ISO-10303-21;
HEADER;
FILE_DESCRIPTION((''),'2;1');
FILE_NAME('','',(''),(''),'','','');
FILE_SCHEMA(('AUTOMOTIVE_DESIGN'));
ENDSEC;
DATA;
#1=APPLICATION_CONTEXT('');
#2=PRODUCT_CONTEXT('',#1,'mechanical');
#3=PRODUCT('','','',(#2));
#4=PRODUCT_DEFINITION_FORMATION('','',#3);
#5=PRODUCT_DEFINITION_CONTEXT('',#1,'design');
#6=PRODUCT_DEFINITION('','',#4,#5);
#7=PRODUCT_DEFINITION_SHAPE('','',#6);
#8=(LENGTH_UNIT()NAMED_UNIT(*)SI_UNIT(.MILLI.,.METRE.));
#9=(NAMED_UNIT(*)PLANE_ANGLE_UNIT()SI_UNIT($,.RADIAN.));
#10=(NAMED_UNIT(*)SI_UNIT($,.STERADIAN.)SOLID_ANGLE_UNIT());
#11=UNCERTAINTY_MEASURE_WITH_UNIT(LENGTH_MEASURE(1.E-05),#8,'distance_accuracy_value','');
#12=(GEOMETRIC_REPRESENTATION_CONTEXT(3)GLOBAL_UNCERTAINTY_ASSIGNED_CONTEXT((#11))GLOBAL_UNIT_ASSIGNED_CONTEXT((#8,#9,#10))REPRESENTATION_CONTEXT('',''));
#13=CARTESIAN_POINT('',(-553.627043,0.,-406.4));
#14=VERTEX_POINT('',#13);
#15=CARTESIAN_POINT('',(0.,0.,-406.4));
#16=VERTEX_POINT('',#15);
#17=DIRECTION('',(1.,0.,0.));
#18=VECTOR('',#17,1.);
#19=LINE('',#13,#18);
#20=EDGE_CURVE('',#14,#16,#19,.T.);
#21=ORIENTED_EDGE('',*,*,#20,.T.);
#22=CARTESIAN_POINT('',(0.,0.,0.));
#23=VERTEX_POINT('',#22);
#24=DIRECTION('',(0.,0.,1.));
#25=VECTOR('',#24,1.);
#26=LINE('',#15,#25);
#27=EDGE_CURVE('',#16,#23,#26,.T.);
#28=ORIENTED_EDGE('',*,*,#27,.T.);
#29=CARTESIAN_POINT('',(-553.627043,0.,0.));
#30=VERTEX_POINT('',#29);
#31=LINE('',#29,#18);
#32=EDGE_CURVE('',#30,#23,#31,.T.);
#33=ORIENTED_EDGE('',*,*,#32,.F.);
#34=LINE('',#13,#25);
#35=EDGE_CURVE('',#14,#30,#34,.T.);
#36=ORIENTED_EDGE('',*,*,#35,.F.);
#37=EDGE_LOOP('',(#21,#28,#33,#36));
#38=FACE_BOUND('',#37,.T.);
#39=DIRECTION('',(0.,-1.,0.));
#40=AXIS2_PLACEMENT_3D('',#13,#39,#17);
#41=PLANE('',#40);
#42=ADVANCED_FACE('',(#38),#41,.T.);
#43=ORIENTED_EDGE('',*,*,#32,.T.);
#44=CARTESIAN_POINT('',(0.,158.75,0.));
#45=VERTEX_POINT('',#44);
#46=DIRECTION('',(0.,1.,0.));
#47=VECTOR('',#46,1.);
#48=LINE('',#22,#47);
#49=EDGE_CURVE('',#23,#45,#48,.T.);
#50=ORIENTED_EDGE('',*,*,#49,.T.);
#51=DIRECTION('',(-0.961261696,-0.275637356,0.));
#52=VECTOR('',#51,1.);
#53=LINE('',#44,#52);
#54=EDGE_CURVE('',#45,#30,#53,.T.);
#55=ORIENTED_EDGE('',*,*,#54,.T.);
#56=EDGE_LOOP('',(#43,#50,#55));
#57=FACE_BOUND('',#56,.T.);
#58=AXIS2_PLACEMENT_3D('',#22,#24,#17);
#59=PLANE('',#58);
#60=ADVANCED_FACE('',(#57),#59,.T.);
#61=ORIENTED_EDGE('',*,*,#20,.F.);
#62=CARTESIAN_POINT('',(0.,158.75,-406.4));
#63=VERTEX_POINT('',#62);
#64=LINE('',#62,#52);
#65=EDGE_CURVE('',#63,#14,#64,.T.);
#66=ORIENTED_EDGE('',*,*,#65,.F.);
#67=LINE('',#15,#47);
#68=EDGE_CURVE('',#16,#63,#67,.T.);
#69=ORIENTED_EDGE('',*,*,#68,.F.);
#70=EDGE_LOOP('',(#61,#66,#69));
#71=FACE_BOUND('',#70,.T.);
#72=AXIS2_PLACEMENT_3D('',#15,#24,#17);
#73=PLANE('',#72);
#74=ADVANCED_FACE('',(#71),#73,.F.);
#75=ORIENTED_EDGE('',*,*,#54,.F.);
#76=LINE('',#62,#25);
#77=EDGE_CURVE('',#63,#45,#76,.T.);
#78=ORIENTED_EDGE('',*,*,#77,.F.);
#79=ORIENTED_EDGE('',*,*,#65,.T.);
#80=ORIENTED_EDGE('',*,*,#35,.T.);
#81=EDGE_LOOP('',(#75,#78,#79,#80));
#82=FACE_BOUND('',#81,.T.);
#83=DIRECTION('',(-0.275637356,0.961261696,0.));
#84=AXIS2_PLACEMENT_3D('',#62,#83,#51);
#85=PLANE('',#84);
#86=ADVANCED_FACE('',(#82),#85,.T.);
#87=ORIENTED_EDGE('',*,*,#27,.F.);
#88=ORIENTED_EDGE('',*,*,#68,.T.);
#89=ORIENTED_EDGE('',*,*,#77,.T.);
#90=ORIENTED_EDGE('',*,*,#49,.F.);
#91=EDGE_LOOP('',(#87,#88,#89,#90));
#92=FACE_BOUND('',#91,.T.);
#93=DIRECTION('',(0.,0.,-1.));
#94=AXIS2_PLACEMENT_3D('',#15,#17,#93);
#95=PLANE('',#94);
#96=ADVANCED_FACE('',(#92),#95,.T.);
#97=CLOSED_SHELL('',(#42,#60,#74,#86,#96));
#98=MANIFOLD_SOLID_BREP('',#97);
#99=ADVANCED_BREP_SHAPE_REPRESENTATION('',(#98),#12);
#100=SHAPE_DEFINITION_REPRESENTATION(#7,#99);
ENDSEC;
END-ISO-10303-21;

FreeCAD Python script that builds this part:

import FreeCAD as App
import Part
import Sketcher
from FreeCAD import Vector
Q = App.Units.Quantity

doc = App.newDocument("Part")
body = doc.addObject("PartDesign::Body", "Body")

sketch1 = body.newObject("Sketcher::SketchObject", "Sketch")
sketch1.AttachmentSupport = (doc.getObject("XY_Plane"), [""])
sketch1.MapMode = "FlatFace"
sketch1.addGeometry([
    Part.LineSegment(Vector(0, 0, 0), Vector(0, 158.75, 0)),
    Part.LineSegment(Vector(0, 158.75, 0), Vector(-553.627043, 0, 0)),
    Part.LineSegment(Vector(-553.627043, 0, 0), Vector(0, 0, 0)),
], False)
sketch1.addConstraint([
    Sketcher.Constraint("Coincident", 0, 2, 1, 1),
    Sketcher.Constraint("Coincident", 1, 2, 2, 1),
    Sketcher.Constraint("Coincident", 2, 2, 0, 1),
    Sketcher.Constraint("Vertical", 0),
    Sketcher.Constraint("Horizontal", 2),
    Sketcher.Constraint("Coincident", 2, 2, -1, 1),
    Sketcher.Constraint("Angle", 1, Q("-164 deg")),
    Sketcher.Constraint("DistanceY", 0, 1, 0, 2, Q("6.25 in")),
])
pad1 = body.newObject("PartDesign::Pad", "Pad")
pad1.Profile = sketch1
pad1.Length = Q("16 in")
pad1.Reversed = True

doc.recompute()
